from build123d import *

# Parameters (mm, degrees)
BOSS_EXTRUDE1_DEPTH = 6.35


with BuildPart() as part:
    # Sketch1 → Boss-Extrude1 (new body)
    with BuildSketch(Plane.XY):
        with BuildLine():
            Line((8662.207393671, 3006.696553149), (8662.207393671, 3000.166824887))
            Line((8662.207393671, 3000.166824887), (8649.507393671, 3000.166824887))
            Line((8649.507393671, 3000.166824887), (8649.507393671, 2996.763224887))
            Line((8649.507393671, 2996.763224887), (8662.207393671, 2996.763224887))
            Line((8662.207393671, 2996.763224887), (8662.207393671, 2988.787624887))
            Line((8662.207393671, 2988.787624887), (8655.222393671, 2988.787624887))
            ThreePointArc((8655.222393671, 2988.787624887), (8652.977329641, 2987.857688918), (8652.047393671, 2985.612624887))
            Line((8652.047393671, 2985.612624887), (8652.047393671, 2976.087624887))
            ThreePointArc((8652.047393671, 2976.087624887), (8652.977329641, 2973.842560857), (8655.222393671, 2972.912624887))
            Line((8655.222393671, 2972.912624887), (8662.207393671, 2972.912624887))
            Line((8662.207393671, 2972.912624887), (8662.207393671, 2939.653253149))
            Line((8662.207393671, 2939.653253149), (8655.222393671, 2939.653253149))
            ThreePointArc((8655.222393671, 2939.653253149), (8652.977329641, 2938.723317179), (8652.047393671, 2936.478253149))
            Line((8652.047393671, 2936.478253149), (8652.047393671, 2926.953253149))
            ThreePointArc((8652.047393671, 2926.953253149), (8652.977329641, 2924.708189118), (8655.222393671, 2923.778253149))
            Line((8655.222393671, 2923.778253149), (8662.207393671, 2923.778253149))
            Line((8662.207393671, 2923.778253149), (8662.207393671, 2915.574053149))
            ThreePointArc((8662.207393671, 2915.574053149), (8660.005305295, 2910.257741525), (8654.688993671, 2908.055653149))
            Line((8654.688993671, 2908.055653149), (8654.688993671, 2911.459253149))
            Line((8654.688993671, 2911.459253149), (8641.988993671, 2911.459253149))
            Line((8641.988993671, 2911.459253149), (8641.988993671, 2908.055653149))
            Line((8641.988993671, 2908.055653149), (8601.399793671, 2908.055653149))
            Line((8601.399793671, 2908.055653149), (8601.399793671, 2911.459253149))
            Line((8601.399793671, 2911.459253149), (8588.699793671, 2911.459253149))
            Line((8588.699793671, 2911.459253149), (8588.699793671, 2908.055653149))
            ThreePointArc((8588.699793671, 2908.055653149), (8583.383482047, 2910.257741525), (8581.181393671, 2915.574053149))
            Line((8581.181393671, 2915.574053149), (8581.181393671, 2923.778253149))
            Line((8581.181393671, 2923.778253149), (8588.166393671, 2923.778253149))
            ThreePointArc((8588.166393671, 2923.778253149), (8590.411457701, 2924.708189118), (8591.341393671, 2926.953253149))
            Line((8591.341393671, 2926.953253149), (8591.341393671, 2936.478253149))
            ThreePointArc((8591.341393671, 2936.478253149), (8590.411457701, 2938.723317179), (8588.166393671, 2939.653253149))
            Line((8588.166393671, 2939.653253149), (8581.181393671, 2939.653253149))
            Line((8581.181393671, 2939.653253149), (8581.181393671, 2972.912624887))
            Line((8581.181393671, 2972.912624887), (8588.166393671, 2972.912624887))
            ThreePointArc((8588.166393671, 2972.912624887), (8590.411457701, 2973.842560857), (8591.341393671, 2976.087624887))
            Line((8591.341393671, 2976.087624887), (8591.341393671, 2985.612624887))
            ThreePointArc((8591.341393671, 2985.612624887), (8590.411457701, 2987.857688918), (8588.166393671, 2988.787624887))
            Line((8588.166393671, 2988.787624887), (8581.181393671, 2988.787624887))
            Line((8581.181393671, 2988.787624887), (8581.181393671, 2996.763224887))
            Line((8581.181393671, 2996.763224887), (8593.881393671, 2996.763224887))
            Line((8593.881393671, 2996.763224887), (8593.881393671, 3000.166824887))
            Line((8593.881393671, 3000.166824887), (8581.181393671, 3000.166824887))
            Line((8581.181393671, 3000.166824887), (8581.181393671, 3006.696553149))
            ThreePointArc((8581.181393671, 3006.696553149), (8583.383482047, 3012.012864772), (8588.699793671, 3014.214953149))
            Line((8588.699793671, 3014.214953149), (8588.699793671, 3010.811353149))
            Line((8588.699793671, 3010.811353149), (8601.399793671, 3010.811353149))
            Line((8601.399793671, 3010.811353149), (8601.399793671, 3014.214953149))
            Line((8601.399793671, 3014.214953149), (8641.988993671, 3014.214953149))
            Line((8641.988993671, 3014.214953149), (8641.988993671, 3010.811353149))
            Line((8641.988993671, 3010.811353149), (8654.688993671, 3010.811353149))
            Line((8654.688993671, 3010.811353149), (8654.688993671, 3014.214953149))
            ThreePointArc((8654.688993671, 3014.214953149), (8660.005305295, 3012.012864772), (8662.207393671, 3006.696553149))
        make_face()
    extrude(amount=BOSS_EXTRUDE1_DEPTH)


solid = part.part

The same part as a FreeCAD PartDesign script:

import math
import FreeCAD as App
import Part
import Sketcher
from FreeCAD import Vector
Q = App.Units.Quantity

doc = App.newDocument("Part")
body = doc.addObject("PartDesign::Body", "Body")

# Sketch on XY plane
sketch1 = body.newObject("Sketcher::SketchObject", "Sketch")
sketch1.AttachmentSupport = (doc.getObject("XY_Plane"), [""])
sketch1.MapMode = "FlatFace"
sketch1.addGeometry([
    Part.LineSegment(Vector(8662.207394, 3000.166825, 0), Vector(8662.207394, 3006.696553, 0)),  # 0
    Part.ArcOfCircle(Part.Circle(Vector(8654.688994, 3006.696553, 0), Vector(0, 0, 1), 7.5184), math.radians(0), math.radians(90)),  # 1
    Part.LineSegment(Vector(8654.688994, 3014.214953, 0), Vector(8654.688994, 3010.811353, 0)),  # 2
    Part.LineSegment(Vector(8654.688994, 3010.811353, 0), Vector(8641.988994, 3010.811353, 0)),  # 3
    Part.LineSegment(Vector(8641.988994, 3010.811353, 0), Vector(8641.988994, 3014.214953, 0)),  # 4
    Part.LineSegment(Vector(8641.988994, 3014.214953, 0), Vector(8601.399794, 3014.214953, 0)),  # 5
    Part.LineSegment(Vector(8601.399794, 3014.214953, 0), Vector(8601.399794, 3010.811353, 0)),  # 6
    Part.LineSegment(Vector(8601.399794, 3010.811353, 0), Vector(8588.699794, 3010.811353, 0)),  # 7
    Part.LineSegment(Vector(8588.699794, 3010.811353, 0), Vector(8588.699794, 3014.214953, 0)),  # 8
    Part.ArcOfCircle(Part.Circle(Vector(8588.699794, 3006.696553, 0), Vector(0, 0, 1), 7.5184), math.radians(90), math.radians(180)),  # 9
    Part.LineSegment(Vector(8581.181394, 3006.696553, 0), Vector(8581.181394, 3000.166825, 0)),  # 10
    Part.LineSegment(Vector(8581.181394, 3000.166825, 0), Vector(8593.881394, 3000.166825, 0)),  # 11
    Part.LineSegment(Vector(8593.881394, 3000.166825, 0), Vector(8593.881394, 2996.763225, 0)),  # 12
    Part.LineSegment(Vector(8593.881394, 2996.763225, 0), Vector(8581.181394, 2996.763225, 0)),  # 13
    Part.LineSegment(Vector(8581.181394, 2996.763225, 0), Vector(8581.181394, 2988.787625, 0)),  # 14
    Part.LineSegment(Vector(8581.181394, 2988.787625, 0), Vector(8588.166394, 2988.787625, 0)),  # 15
    Part.ArcOfCircle(Part.Circle(Vector(8588.166394, 2985.612625, 0), Vector(0, 0, 1), 3.175), math.radians(0), math.radians(90)),  # 16
    Part.LineSegment(Vector(8591.341394, 2985.612625, 0), Vector(8591.341394, 2976.087625, 0)),  # 17
    Part.ArcOfCircle(Part.Circle(Vector(8588.166394, 2976.087625, 0), Vector(0, 0, 1), 3.175), math.radians(-90), math.radians(0)),  # 18
    Part.LineSegment(Vector(8588.166394, 2972.912625, 0), Vector(8581.181394, 2972.912625, 0)),  # 19
    Part.LineSegment(Vector(8581.181394, 2972.912625, 0), Vector(8581.181394, 2939.653253, 0)),  # 20
    Part.LineSegment(Vector(8581.181394, 2939.653253, 0), Vector(8588.166394, 2939.653253, 0)),  # 21
    Part.ArcOfCircle(Part.Circle(Vector(8588.166394, 2936.478253, 0), Vector(0, 0, 1), 3.175), math.radians(0), math.radians(90)),  # 22
    Part.LineSegment(Vector(8591.341394, 2936.478253, 0), Vector(8591.341394, 2926.953253, 0)),  # 23
    Part.ArcOfCircle(Part.Circle(Vector(8588.166394, 2926.953253, 0), Vector(0, 0, 1), 3.175), math.radians(-90), math.radians(0)),  # 24
    Part.LineSegment(Vector(8588.166394, 2923.778253, 0), Vector(8581.181394, 2923.778253, 0)),  # 25
    Part.LineSegment(Vector(8581.181394, 2923.778253, 0), Vector(8581.181394, 2915.574053, 0)),  # 26
    Part.ArcOfCircle(Part.Circle(Vector(8588.699794, 2915.574053, 0), Vector(0, 0, 1), 7.5184), math.radians(180), math.radians(270)),  # 27
    Part.LineSegment(Vector(8588.699794, 2908.055653, 0), Vector(8588.699794, 2911.459253, 0)),  # 28
    Part.LineSegment(Vector(8588.699794, 2911.459253, 0), Vector(8601.399794, 2911.459253, 0)),  # 29
    Part.LineSegment(Vector(8601.399794, 2911.459253, 0), Vector(8601.399794, 2908.055653, 0)),  # 30
    Part.LineSegment(Vector(8601.399794, 2908.055653, 0), Vector(8641.988994, 2908.055653, 0)),  # 31
    Part.LineSegment(Vector(8641.988994, 2908.055653, 0), Vector(8641.988994, 2911.459253, 0)),  # 32
    Part.LineSegment(Vector(8641.988994, 2911.459253, 0), Vector(8654.688994, 2911.459253, 0)),  # 33
    Part.LineSegment(Vector(8654.688994, 2911.459253, 0), Vector(8654.688994, 2908.055653, 0)),  # 34
    Part.ArcOfCircle(Part.Circle(Vector(8654.688994, 2915.574053, 0), Vector(0, 0, 1), 7.5184), math.radians(-90), math.radians(0)),  # 35
    Part.LineSegment(Vector(8662.207394, 2915.574053, 0), Vector(8662.207394, 2923.778253, 0)),  # 36
    Part.LineSegment(Vector(8662.207394, 2923.778253, 0), Vector(8655.222394, 2923.778253, 0)),  # 37
    Part.ArcOfCircle(Part.Circle(Vector(8655.222394, 2926.953253, 0), Vector(0, 0, 1), 3.175), math.radians(180), math.radians(270)),  # 38
    Part.LineSegment(Vector(8652.047394, 2926.953253, 0), Vector(8652.047394, 2936.478253, 0)),  # 39
    Part.ArcOfCircle(Part.Circle(Vector(8655.222394, 2936.478253, 0), Vector(0, 0, 1), 3.175), math.radians(90), math.radians(180)),  # 40
    Part.LineSegment(Vector(8655.222394, 2939.653253, 0), Vector(8662.207394, 2939.653253, 0)),  # 41
    Part.LineSegment(Vector(8662.207394, 2939.653253, 0), Vector(8662.207394, 2972.912625, 0)),  # 42
    Part.LineSegment(Vector(8662.207394, 2972.912625, 0), Vector(8655.222394, 2972.912625, 0)),  # 43
    Part.ArcOfCircle(Part.Circle(Vector(8655.222394, 2976.087625, 0), Vector(0, 0, 1), 3.175), math.radians(-180), math.radians(-90)),  # 44
    Part.LineSegment(Vector(8652.047394, 2976.087625, 0), Vector(8652.047394, 2985.612625, 0)),  # 45
    Part.ArcOfCircle(Part.Circle(Vector(8655.222394, 2985.612625, 0), Vector(0, 0, 1), 3.175), math.radians(90), math.radians(180)),  # 46
    Part.LineSegment(Vector(8655.222394, 2988.787625, 0), Vector(8662.207394, 2988.787625, 0)),  # 47
    Part.LineSegment(Vector(8662.207394, 2988.787625, 0), Vector(8662.207394, 2996.763225, 0)),  # 48
    Part.LineSegment(Vector(8662.207394, 2996.763225, 0), Vector(8649.507394, 2996.763225, 0)),  # 49
    Part.LineSegment(Vector(8649.507394, 2996.763225, 0), Vector(8649.507394, 3000.166825, 0)),  # 50
    Part.LineSegment(Vector(8649.507394, 3000.166825, 0), Vector(8662.207394, 3000.166825, 0)),  # 51
], False)
sketch1.addConstraint([
    Sketcher.Constraint("Tangent", 0, 2, 1, 1),
    Sketcher.Constraint("Coincident", 1, 2, 2, 1),
    Sketcher.Constraint("Coincident", 2, 2, 3, 1),
    Sketcher.Constraint("Coincident", 3, 2, 4, 1),
    Sketcher.Constraint("Coincident", 4, 2, 5, 1),
    Sketcher.Constraint("Coincident", 5, 2, 6, 1),
    Sketcher.Constraint("Coincident", 6, 2, 7, 1),
    Sketcher.Constraint("Coincident", 7, 2, 8, 1),
    Sketcher.Constraint("Coincident", 8, 2, 9, 1),
    Sketcher.Constraint("Tangent", 9, 2, 10, 1),
    Sketcher.Constraint("Coincident", 10, 2, 11, 1),
    Sketcher.Constraint("Coincident", 11, 2, 12, 1),
    Sketcher.Constraint("Coincident", 12, 2, 13, 1),
    Sketcher.Constraint("Coincident", 13, 2, 14, 1),
    Sketcher.Constraint("Coincident", 14, 2, 15, 1),
    Sketcher.Constraint("Tangent", 15, 2, 16, 2),
    Sketcher.Constraint("Tangent", 16, 1, 17, 1),
    Sketcher.Constraint("Tangent", 17, 2, 18, 2),
    Sketcher.Constraint("Tangent", 18, 1, 19, 1),
    Sketcher.Constraint("Coincident", 19, 2, 20, 1),
    Sketcher.Constraint("Coincident", 20, 2, 21, 1),
    Sketcher.Constraint("Tangent", 21, 2, 22, 2),
    Sketcher.Constraint("Tangent", 22, 1, 23, 1),
    Sketcher.Constraint("Tangent", 23, 2, 24, 2),
    Sketcher.Constraint("Tangent", 24, 1, 25, 1),
    Sketcher.Constraint("Coincident", 25, 2, 26, 1),
    Sketcher.Constraint("Tangent", 26, 2, 27, 1),
    Sketcher.Constraint("Coincident", 27, 2, 28, 1),
    Sketcher.Constraint("Coincident", 28, 2, 29, 1),
    Sketcher.Constraint("Coincident", 29, 2, 30, 1),
    Sketcher.Constraint("Coincident", 30, 2, 31, 1),
    Sketcher.Constraint("Coincident", 31, 2, 32, 1),
    Sketcher.Constraint("Coincident", 32, 2, 33, 1),
    Sketcher.Constraint("Coincident", 33, 2, 34, 1),
    Sketcher.Constraint("Coincident", 34, 2, 35, 1),
    Sketcher.Constraint("Tangent", 35, 2, 36, 1),
    Sketcher.Constraint("Coincident", 36, 2, 37, 1),
    Sketcher.Constraint("Tangent", 37, 2, 38, 2),
    Sketcher.Constraint("Tangent", 38, 1, 39, 1),
    Sketcher.Constraint("Tangent", 39, 2, 40, 2),
    Sketcher.Constraint("Tangent", 40, 1, 41, 1),
    Sketcher.Constraint("Coincident", 41, 2, 42, 1),
    Sketcher.Constraint("Coincident", 42, 2, 43, 1),
    Sketcher.Constraint("Tangent", 43, 2, 44, 2),
    Sketcher.Constraint("Tangent", 44, 1, 45, 1),
    Sketcher.Constraint("Tangent", 45, 2, 46, 2),
    Sketcher.Constraint("Tangent", 46, 1, 47, 1),
    Sketcher.Constraint("Coincident", 47, 2, 48, 1),
    Sketcher.Constraint("Coincident", 48, 2, 49, 1),
    Sketcher.Constraint("Coincident", 49, 2, 50, 1),
    Sketcher.Constraint("Coincident", 50, 2, 51, 1),
    Sketcher.Constraint("Coincident", 51, 2, 0, 1),
    Sketcher.Constraint("Vertical", 0),
    Sketcher.Constraint("Vertical", 2),
    Sketcher.Constraint("Horizontal", 3),
    Sketcher.Constraint("Vertical", 4),
    Sketcher.Constraint("Horizontal", 5),
    Sketcher.Constraint("Vertical", 6),
    Sketcher.Constraint("Horizontal", 7),
    Sketcher.Constraint("Vertical", 8),
    Sketcher.Constraint("Vertical", 10),
    Sketcher.Constraint("Horizontal", 11),
    Sketcher.Constraint("Vertical", 12),
    Sketcher.Constraint("Horizontal", 13),
    Sketcher.Constraint("Vertical", 14),
    Sketcher.Constraint("Horizontal", 15),
    Sketcher.Constraint("Vertical", 17),
    Sketcher.Constraint("Horizontal", 19),
    Sketcher.Constraint("Vertical", 20),
    Sketcher.Constraint("Horizontal", 21),
    Sketcher.Constraint("Vertical", 23),
    Sketcher.Constraint("Horizontal", 25),
    Sketcher.Constraint("Vertical", 26),
    Sketcher.Constraint("Vertical", 28),
    Sketcher.Constraint("Horizontal", 29),
    Sketcher.Constraint("Vertical", 30),
    Sketcher.Constraint("Horizontal", 31),
    Sketcher.Constraint("Vertical", 32),
    Sketcher.Constraint("Horizontal", 33),
    Sketcher.Constraint("Vertical", 34),
    Sketcher.Constraint("Vertical", 36),
    Sketcher.Constraint("Horizontal", 37),
    Sketcher.Constraint("Vertical", 39),
    Sketcher.Constraint("Horizontal", 41),
    Sketcher.Constraint("Vertical", 42),
    Sketcher.Constraint("Horizontal", 43),
    Sketcher.Constraint("Vertical", 45),
    Sketcher.Constraint("Horizontal", 47),
    Sketcher.Constraint("Vertical", 48),
    Sketcher.Constraint("Horizontal", 49),
    Sketcher.Constraint("Vertical", 50),
    Sketcher.Constraint("Horizontal", 51),
    Sketcher.Constraint("Equal", 1, 9),
    Sketcher.Constraint("Equal", 16, 18),
    Sketcher.Constraint("Equal", 18, 22),
    Sketcher.Constraint("Equal", 22, 24),
    Sketcher.Constraint("Equal", 9, 27),
    Sketcher.Constraint("Equal", 27, 35),
    Sketcher.Constraint("Equal", 24, 38),
    Sketcher.Constraint("Equal", 38, 40),
    Sketcher.Constraint("Equal", 40, 44),
    Sketcher.Constraint("Equal", 44, 46),
    Sketcher.Constraint("Horizontal", 1, 3, 9, 3),
    Sketcher.Constraint("Horizontal", 27, 3, 35, 3),
    Sketcher.Constraint("Horizontal", 24, 3, 38, 3),
    Sketcher.Constraint("Horizontal", 22, 3, 40, 3),
    Sketcher.Constraint("Horizontal", 18, 3, 44, 3),
    Sketcher.Constraint("Horizontal", 16, 3, 46, 3),
    Sketcher.Constraint("Horizontal", 1, 2, 4, 2),
    Sketcher.Constraint("Horizontal", 3, 2, 6, 2),
    Sketcher.Constraint("Horizontal", 27, 2, 30, 2),
    Sketcher.Constraint("Horizontal", 29, 2, 32, 2),
    Sketcher.Constraint("Horizontal", 13, 2, 48, 2),
    Sketcher.Constraint("Horizontal", 11, 2, 50, 2),
    Sketcher.Constraint("Vertical", 18, 3, 22, 3),
    Sketcher.Constraint("Vertical", 9, 3, 27, 3),
    Sketcher.Constraint("Vertical", 1, 3, 35, 3),
    Sketcher.Constraint("Vertical", 40, 3, 44, 3),
    Sketcher.Constraint("Vertical", 35, 3, 1, 2),
    Sketcher.Constraint("Vertical", 27, 3, 7, 2),
    Sketcher.Constraint("Vertical", 10, 2, 13, 2),
    Sketcher.Constraint("Vertical", 14, 2, 19, 2),
    Sketcher.Constraint("Vertical", 8, 2, 27, 2),
    Sketcher.Constraint("Vertical", 6, 2, 29, 2),
    Sketcher.Constraint("Vertical", 4, 2, 31, 2),
    Sketcher.Constraint("Vertical", 2, 2, 33, 2),
    Sketcher.Constraint("Vertical", 36, 2, 41, 2),
    Sketcher.Constraint("Vertical", 42, 2, 47, 2),
    Sketcher.Constraint("Equal", 3, 7),
    Sketcher.Constraint("Equal", 7, 11),
    Sketcher.Constraint("Equal", 25, 37),
    Sketcher.Constraint("Equal", 33, 49),
    Sketcher.Constraint("Equal", 8, 12),
    Sketcher.Constraint("Equal", 17, 23),
    Sketcher.Constraint("Equal", 12, 28),
    Sketcher.Constraint("DistanceX", 3, 2, 3, 1, Q("0.5 in")),
    Sketcher.Constraint("Radius", 1, Q("0.296 in")),
    Sketcher.Constraint("Radius", 16, Q("0.125 in")),
    Sketcher.Constraint("DistanceX", 5, 2, 5, 1, Q("1.598 in")),
    Sketcher.Constraint("DistanceX", 15, 1, 15, 2, Q("0.275 in")),
    Sketcher.Constraint("DistanceY", 2, 2, 2, 1, Q("0.134 in")),
    Sketcher.Constraint("DistanceY", 14, 2, 14, 1, Q("0.314 in")),
    Sketcher.Constraint("DistanceY", 17, 2, 17, 1, Q("0.375 in")),
    Sketcher.Constraint("DistanceY", 26, 2, 26, 1, Q("0.323 in")),
    Sketcher.Constraint("DistanceY", 0, 1, 0, 2, 6.529728),
    Sketcher.Constraint("DistanceY", 20, 2, 20, 1, 33.259372),
    Sketcher.Constraint("DistanceX", -1, 1, 1, 3, 8654.688994),
    Sketcher.Constraint("DistanceY", -1, 1, 1, 3, 3006.696553),
])
pad1 = body.newObject("PartDesign::Pad", "Pad")
pad1.Profile = sketch1
pad1.Length = Q("0.25 in")

doc.recompute()
